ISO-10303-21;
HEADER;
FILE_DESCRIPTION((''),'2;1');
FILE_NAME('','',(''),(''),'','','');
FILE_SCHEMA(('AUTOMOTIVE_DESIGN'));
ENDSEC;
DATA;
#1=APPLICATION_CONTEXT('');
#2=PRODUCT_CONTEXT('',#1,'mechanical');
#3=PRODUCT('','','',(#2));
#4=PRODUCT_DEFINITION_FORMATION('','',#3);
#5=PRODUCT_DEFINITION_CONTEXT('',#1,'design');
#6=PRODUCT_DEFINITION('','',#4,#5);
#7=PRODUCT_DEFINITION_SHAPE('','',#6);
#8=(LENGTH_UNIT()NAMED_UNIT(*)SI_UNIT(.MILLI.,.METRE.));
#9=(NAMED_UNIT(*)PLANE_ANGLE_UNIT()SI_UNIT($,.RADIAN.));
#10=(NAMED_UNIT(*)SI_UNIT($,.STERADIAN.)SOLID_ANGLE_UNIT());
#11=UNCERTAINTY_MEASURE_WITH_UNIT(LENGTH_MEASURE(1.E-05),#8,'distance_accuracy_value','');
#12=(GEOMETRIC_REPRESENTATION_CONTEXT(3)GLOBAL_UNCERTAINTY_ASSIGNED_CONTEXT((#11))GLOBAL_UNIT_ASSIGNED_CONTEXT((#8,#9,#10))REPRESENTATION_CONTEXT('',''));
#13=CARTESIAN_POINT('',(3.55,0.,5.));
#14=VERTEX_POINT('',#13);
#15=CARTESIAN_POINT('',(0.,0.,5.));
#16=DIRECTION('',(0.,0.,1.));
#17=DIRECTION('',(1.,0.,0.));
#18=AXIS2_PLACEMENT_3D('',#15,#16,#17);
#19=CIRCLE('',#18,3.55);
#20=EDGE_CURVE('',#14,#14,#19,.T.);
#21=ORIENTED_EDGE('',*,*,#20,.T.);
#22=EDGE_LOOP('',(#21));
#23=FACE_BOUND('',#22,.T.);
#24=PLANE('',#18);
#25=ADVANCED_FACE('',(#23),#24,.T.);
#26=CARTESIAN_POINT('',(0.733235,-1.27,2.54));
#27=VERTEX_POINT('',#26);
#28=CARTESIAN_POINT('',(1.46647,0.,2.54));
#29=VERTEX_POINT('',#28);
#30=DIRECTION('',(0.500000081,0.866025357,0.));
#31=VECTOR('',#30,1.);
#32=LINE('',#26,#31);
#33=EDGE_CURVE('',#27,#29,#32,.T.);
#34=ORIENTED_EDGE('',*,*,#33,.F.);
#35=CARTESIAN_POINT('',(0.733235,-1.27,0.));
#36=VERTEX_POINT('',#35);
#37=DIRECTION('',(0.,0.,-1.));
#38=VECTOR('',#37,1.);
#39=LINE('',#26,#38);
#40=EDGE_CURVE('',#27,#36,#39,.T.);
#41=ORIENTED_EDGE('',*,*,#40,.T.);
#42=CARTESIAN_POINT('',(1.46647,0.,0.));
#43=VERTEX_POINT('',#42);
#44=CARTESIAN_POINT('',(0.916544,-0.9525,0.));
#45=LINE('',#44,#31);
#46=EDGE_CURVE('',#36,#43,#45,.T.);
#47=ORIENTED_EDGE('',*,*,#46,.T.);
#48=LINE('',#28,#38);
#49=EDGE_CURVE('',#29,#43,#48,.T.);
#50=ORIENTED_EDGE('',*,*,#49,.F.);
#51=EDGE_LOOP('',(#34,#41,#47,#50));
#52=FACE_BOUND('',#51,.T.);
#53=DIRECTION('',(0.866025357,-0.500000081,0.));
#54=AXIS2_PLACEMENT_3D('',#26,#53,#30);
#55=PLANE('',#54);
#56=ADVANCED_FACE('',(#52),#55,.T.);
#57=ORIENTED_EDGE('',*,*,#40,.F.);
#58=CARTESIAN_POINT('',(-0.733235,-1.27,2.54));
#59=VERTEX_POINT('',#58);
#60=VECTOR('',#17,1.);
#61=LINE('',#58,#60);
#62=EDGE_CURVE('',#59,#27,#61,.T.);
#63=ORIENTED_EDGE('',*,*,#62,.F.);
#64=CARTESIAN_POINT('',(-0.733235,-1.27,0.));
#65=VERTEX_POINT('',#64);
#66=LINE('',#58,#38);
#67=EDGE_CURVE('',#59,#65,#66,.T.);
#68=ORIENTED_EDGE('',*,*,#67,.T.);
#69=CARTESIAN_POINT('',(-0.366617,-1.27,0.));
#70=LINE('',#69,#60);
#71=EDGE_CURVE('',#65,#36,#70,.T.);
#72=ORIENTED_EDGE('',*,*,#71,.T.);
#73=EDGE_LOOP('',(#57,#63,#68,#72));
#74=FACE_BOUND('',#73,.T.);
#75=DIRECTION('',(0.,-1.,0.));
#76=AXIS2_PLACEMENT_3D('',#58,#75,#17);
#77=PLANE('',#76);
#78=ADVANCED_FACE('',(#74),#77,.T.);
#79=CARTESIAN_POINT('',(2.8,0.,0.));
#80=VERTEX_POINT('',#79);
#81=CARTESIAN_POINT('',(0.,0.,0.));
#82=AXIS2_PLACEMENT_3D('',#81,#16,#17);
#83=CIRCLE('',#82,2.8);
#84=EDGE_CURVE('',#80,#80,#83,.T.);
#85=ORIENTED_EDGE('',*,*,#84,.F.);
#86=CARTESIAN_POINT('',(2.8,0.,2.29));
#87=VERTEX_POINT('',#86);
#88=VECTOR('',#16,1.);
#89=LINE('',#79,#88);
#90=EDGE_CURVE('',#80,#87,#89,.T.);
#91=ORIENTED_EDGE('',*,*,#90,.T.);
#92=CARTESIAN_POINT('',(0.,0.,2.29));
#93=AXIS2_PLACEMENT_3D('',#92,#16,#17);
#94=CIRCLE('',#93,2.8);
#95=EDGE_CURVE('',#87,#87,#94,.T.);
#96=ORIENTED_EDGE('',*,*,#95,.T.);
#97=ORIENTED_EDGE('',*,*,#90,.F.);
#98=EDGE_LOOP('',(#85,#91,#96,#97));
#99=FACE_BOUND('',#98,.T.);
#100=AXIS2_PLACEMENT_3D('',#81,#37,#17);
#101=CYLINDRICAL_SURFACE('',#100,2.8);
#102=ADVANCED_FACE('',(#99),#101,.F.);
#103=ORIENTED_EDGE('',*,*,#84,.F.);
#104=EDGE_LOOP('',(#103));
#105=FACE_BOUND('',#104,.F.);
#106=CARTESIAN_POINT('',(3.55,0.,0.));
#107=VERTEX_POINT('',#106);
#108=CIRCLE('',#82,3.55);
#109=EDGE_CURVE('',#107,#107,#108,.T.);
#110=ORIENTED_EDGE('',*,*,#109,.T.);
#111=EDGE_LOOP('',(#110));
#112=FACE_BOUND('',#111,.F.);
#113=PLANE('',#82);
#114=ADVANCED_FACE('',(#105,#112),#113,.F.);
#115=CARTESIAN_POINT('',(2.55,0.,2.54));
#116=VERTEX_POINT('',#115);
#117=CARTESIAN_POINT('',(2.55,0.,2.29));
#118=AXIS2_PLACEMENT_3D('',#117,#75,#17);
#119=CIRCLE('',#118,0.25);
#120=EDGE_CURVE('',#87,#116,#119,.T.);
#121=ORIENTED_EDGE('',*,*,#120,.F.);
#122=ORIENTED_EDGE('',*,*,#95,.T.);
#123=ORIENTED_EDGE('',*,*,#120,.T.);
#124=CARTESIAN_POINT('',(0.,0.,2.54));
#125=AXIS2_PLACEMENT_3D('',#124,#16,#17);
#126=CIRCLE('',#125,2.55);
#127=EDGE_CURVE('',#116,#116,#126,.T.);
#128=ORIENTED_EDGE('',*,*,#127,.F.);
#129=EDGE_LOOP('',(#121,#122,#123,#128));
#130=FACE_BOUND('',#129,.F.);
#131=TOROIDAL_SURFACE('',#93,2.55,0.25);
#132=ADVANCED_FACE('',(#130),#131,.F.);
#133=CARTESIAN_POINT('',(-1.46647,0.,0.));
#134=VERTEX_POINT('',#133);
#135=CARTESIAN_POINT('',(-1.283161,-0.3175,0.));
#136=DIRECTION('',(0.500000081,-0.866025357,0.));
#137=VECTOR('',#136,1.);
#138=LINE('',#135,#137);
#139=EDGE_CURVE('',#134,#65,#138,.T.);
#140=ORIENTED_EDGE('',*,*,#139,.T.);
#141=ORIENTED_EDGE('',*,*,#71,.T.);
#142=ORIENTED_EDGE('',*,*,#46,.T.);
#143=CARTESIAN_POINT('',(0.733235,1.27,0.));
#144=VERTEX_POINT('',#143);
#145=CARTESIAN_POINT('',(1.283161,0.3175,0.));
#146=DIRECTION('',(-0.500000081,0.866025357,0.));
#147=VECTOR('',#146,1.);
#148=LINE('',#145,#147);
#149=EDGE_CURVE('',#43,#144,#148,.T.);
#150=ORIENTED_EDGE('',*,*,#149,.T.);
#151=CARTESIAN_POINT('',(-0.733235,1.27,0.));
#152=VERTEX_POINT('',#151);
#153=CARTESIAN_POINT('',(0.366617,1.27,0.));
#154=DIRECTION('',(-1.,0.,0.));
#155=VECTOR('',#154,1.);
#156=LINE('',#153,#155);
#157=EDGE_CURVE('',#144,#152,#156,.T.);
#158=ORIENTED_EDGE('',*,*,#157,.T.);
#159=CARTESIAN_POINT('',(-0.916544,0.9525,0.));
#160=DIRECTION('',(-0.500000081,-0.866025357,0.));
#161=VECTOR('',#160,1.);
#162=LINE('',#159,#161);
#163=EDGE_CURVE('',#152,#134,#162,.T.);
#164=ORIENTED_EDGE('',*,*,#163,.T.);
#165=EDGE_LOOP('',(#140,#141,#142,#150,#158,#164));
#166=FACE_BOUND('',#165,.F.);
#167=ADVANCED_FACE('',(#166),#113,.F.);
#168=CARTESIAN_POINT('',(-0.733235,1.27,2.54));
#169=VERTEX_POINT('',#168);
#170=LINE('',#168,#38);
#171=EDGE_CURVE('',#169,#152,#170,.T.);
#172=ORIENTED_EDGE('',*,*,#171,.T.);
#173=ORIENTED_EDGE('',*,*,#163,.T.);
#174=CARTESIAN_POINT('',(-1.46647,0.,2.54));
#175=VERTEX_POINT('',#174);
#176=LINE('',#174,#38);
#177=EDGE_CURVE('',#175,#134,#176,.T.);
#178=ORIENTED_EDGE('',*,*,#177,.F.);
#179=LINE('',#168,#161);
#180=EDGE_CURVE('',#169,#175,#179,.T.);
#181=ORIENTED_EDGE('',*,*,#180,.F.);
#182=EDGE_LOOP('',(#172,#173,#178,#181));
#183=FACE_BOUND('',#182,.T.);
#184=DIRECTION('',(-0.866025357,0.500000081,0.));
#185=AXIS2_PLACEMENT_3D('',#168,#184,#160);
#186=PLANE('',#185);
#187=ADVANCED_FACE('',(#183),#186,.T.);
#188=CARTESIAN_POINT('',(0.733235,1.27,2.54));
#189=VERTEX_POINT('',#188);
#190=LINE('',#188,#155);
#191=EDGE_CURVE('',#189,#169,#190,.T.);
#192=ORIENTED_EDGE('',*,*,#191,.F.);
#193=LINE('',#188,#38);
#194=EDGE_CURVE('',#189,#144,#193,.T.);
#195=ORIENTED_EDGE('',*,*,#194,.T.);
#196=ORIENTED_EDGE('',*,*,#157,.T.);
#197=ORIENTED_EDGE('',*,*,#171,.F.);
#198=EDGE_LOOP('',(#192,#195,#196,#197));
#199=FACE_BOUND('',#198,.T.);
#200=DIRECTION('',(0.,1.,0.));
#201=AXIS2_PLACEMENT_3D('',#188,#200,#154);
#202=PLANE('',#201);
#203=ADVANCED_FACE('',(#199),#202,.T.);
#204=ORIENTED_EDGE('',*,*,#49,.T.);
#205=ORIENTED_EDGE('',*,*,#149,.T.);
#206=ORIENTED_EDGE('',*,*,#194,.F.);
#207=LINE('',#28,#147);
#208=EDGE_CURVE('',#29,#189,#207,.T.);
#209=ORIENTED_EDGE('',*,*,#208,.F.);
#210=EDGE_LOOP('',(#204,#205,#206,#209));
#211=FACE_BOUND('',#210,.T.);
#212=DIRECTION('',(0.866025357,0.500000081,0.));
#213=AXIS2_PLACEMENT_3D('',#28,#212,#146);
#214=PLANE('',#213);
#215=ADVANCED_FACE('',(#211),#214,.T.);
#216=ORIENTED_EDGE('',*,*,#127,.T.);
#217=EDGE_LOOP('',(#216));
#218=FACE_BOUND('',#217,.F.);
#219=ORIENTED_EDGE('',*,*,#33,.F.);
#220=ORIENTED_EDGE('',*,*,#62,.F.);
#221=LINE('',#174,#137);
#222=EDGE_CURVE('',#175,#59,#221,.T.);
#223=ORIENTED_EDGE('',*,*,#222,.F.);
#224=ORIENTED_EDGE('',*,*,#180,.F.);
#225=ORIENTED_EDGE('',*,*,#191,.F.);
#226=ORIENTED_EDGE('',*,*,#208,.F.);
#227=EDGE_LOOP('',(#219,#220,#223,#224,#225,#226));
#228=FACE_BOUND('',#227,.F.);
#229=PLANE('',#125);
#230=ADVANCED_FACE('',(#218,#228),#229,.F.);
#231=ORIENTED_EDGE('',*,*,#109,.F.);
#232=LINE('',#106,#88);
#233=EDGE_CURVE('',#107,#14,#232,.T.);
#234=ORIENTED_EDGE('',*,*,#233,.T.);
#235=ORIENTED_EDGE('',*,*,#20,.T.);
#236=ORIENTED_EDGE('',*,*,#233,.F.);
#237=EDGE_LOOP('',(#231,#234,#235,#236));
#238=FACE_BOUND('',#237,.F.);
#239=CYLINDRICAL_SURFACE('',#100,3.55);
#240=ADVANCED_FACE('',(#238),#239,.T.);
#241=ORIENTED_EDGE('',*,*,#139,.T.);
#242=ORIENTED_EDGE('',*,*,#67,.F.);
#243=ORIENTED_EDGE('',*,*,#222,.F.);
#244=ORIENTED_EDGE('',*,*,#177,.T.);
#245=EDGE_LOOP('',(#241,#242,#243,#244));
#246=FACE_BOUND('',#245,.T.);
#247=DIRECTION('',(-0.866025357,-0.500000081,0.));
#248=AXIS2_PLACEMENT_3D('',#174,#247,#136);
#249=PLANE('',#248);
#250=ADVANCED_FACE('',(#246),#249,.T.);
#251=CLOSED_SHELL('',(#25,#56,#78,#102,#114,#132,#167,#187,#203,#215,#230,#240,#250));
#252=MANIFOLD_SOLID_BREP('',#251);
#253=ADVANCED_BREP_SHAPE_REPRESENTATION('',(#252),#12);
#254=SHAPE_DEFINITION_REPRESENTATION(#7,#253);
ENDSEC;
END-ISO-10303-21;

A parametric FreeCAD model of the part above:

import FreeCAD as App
import Part
import Sketcher
from FreeCAD import Vector
Q = App.Units.Quantity


def edges_at(feature, points):
    """Names of the edges that pass closest to the given points."""
    edges = feature.Shape.Edges
    near = lambda p: min(range(len(edges)), key=lambda i: edges[i].distToShape(Part.Vertex(*p))[0])
    return sorted({f"Edge{near(p) + 1}" for p in points})

doc = App.newDocument("Part")
params = doc.addObject("Spreadsheet::Sheet", "Params")
for row, (alias, value) in enumerate([
    ("sketch1_diameter", "5.6 mm"),
    ("pad1_length", "2.54 mm"),
    ("pocket1_length", "5 mm"),
    ("fillet_radius", "0.25 mm"),
    ("sketch3_diameter", "7.1 mm"),
    ("pad2_length", "5 mm"),
], start=1):
    params.set(f"A{row}", alias)
    params.set(f"B{row}", "=" + value)
    params.setAlias(f"B{row}", alias)

body = doc.addObject("PartDesign::Body", "Body")

sketch1 = body.newObject("Sketcher::SketchObject", "Sketch")
sketch1.AttachmentSupport = (doc.getObject("XY_Plane"), [""])
sketch1.MapMode = "FlatFace"
sketch1.addGeometry(Part.Circle(Vector(0, 0, 0), Vector(0, 0, 1), 2.8), False)
sketch1.addConstraint(Sketcher.Constraint("Coincident", 0, 3, -1, 1))
sketch1.addConstraint(Sketcher.Constraint("Diameter", 0, Q("5.6 mm")))
sketch1.setExpression("Constraints[1]", "Params.sketch1_diameter")
pad1 = body.newObject("PartDesign::Pad", "Pad")
pad1.Profile = sketch1
pad1.setExpression("Length", "Params.pad1_length")

sketch2 = body.newObject("Sketcher::SketchObject", "Sketch001")
sketch2.AttachmentSupport = (doc.getObject("XY_Plane"), [""])
sketch2.MapMode = "FlatFace"
sketch2.AttachmentOffset = App.Placement(Vector(0, 0, 2.54), App.Rotation())
sketch2.addGeometry(Part.LineSegment(Vector(-0.7, 1.3, 0), Vector(-1.5, 0, 0)), False)
sketch2.addGeometry(Part.LineSegment(Vector(-1.5, 0, 0), Vector(-0.7, -1.3, 0)), False)
sketch2.addGeometry(Part.LineSegment(Vector(-0.7, -1.3, 0), Vector(0.7, -1.3, 0)), False)
sketch2.addGeometry(Part.LineSegment(Vector(0.7, -1.3, 0), Vector(1.5, 0, 0)), False)
sketch2.addGeometry(Part.LineSegment(Vector(1.5, 0, 0), Vector(0.7, 1.3, 0)), False)
sketch2.addGeometry(Part.LineSegment(Vector(0.7, 1.3, 0), Vector(-0.7, 1.3, 0)), False)
sketch2.addConstraint(Sketcher.Constraint("Coincident", 0, 2, 1, 1))
sketch2.addConstraint(Sketcher.Constraint("Coincident", 1, 2, 2, 1))
sketch2.addConstraint(Sketcher.Constraint("Coincident", 2, 2, 3, 1))
sketch2.addConstraint(Sketcher.Constraint("Coincident", 3, 2, 4, 1))
sketch2.addConstraint(Sketcher.Constraint("Coincident", 4, 2, 5, 1))
sketch2.addConstraint(Sketcher.Constraint("Coincident", 5, 2, 0, 1))
sketch2.addConstraint(Sketcher.Constraint("Horizontal", 2))
sketch2.addConstraint(Sketcher.Constraint("Horizontal", 5))
sketch2.addConstraint(Sketcher.Constraint("Symmetric", 0, 2, 3, 2, -1, 1))
sketch2.addConstraint(Sketcher.Constraint("Symmetric", 1, 2, 4, 2, -1, 1))
sketch2.addConstraint(Sketcher.Constraint("PointOnObject", 0, 2, -1))
sketch2.addConstraint(Sketcher.Constraint("Parallel", 0, 3))
sketch2.addConstraint(Sketcher.Constraint("Vertical", 2, 2, 4, 2))
sketch2.addConstraint(Sketcher.Constraint("Angle", 0, Q("-120.000005 deg")))
sketch2.addConstraint(Sketcher.Constraint("DistanceY", 1, 2, -1, 1, Q("1.27 mm")))
sketch2.addConstraint(Sketcher.Constraint("DistanceX", 2, 1, 2, 2, Q("1.46647 mm")))
pocket1 = body.newObject("PartDesign::Pocket", "Pocket")
pocket1.Profile = sketch2
pocket1.setExpression("Length", "Params.pocket1_length")
doc.recompute()

fillet = body.newObject("PartDesign::Fillet", "Fillet")
fillet.Base = (pocket1, edges_at(pocket1, [(-2.8, 0, 2.54)]))
fillet.setExpression("Radius", "Params.fillet_radius")
body2 = doc.addObject("PartDesign::Body", "Body001")

sketch3 = body2.newObject("Sketcher::SketchObject", "Sketch002")
sketch3.AttachmentSupport = (doc.getObject("XY_Plane001"), [""])
sketch3.MapMode = "FlatFace"
sketch3.addGeometry(Part.Circle(Vector(0, 0, 0), Vector(0, 0, 1), 3.5), False)
sketch3.addConstraint(Sketcher.Constraint("Coincident", 0, 3, -1, 1))
sketch3.addConstraint(Sketcher.Constraint("Diameter", 0, Q("7.1 mm")))
sketch3.setExpression("Constraints[1]", "Params.sketch3_diameter")
pad2 = body2.newObject("PartDesign::Pad", "Pad001")
pad2.Profile = sketch3
pad2.setExpression("Length", "Params.pad2_length")
doc.recompute()

boolean = body2.newObject("PartDesign::Boolean", "Boolean")
boolean.Type = "Cut"
boolean.addObjects([body])

doc.recompute()
